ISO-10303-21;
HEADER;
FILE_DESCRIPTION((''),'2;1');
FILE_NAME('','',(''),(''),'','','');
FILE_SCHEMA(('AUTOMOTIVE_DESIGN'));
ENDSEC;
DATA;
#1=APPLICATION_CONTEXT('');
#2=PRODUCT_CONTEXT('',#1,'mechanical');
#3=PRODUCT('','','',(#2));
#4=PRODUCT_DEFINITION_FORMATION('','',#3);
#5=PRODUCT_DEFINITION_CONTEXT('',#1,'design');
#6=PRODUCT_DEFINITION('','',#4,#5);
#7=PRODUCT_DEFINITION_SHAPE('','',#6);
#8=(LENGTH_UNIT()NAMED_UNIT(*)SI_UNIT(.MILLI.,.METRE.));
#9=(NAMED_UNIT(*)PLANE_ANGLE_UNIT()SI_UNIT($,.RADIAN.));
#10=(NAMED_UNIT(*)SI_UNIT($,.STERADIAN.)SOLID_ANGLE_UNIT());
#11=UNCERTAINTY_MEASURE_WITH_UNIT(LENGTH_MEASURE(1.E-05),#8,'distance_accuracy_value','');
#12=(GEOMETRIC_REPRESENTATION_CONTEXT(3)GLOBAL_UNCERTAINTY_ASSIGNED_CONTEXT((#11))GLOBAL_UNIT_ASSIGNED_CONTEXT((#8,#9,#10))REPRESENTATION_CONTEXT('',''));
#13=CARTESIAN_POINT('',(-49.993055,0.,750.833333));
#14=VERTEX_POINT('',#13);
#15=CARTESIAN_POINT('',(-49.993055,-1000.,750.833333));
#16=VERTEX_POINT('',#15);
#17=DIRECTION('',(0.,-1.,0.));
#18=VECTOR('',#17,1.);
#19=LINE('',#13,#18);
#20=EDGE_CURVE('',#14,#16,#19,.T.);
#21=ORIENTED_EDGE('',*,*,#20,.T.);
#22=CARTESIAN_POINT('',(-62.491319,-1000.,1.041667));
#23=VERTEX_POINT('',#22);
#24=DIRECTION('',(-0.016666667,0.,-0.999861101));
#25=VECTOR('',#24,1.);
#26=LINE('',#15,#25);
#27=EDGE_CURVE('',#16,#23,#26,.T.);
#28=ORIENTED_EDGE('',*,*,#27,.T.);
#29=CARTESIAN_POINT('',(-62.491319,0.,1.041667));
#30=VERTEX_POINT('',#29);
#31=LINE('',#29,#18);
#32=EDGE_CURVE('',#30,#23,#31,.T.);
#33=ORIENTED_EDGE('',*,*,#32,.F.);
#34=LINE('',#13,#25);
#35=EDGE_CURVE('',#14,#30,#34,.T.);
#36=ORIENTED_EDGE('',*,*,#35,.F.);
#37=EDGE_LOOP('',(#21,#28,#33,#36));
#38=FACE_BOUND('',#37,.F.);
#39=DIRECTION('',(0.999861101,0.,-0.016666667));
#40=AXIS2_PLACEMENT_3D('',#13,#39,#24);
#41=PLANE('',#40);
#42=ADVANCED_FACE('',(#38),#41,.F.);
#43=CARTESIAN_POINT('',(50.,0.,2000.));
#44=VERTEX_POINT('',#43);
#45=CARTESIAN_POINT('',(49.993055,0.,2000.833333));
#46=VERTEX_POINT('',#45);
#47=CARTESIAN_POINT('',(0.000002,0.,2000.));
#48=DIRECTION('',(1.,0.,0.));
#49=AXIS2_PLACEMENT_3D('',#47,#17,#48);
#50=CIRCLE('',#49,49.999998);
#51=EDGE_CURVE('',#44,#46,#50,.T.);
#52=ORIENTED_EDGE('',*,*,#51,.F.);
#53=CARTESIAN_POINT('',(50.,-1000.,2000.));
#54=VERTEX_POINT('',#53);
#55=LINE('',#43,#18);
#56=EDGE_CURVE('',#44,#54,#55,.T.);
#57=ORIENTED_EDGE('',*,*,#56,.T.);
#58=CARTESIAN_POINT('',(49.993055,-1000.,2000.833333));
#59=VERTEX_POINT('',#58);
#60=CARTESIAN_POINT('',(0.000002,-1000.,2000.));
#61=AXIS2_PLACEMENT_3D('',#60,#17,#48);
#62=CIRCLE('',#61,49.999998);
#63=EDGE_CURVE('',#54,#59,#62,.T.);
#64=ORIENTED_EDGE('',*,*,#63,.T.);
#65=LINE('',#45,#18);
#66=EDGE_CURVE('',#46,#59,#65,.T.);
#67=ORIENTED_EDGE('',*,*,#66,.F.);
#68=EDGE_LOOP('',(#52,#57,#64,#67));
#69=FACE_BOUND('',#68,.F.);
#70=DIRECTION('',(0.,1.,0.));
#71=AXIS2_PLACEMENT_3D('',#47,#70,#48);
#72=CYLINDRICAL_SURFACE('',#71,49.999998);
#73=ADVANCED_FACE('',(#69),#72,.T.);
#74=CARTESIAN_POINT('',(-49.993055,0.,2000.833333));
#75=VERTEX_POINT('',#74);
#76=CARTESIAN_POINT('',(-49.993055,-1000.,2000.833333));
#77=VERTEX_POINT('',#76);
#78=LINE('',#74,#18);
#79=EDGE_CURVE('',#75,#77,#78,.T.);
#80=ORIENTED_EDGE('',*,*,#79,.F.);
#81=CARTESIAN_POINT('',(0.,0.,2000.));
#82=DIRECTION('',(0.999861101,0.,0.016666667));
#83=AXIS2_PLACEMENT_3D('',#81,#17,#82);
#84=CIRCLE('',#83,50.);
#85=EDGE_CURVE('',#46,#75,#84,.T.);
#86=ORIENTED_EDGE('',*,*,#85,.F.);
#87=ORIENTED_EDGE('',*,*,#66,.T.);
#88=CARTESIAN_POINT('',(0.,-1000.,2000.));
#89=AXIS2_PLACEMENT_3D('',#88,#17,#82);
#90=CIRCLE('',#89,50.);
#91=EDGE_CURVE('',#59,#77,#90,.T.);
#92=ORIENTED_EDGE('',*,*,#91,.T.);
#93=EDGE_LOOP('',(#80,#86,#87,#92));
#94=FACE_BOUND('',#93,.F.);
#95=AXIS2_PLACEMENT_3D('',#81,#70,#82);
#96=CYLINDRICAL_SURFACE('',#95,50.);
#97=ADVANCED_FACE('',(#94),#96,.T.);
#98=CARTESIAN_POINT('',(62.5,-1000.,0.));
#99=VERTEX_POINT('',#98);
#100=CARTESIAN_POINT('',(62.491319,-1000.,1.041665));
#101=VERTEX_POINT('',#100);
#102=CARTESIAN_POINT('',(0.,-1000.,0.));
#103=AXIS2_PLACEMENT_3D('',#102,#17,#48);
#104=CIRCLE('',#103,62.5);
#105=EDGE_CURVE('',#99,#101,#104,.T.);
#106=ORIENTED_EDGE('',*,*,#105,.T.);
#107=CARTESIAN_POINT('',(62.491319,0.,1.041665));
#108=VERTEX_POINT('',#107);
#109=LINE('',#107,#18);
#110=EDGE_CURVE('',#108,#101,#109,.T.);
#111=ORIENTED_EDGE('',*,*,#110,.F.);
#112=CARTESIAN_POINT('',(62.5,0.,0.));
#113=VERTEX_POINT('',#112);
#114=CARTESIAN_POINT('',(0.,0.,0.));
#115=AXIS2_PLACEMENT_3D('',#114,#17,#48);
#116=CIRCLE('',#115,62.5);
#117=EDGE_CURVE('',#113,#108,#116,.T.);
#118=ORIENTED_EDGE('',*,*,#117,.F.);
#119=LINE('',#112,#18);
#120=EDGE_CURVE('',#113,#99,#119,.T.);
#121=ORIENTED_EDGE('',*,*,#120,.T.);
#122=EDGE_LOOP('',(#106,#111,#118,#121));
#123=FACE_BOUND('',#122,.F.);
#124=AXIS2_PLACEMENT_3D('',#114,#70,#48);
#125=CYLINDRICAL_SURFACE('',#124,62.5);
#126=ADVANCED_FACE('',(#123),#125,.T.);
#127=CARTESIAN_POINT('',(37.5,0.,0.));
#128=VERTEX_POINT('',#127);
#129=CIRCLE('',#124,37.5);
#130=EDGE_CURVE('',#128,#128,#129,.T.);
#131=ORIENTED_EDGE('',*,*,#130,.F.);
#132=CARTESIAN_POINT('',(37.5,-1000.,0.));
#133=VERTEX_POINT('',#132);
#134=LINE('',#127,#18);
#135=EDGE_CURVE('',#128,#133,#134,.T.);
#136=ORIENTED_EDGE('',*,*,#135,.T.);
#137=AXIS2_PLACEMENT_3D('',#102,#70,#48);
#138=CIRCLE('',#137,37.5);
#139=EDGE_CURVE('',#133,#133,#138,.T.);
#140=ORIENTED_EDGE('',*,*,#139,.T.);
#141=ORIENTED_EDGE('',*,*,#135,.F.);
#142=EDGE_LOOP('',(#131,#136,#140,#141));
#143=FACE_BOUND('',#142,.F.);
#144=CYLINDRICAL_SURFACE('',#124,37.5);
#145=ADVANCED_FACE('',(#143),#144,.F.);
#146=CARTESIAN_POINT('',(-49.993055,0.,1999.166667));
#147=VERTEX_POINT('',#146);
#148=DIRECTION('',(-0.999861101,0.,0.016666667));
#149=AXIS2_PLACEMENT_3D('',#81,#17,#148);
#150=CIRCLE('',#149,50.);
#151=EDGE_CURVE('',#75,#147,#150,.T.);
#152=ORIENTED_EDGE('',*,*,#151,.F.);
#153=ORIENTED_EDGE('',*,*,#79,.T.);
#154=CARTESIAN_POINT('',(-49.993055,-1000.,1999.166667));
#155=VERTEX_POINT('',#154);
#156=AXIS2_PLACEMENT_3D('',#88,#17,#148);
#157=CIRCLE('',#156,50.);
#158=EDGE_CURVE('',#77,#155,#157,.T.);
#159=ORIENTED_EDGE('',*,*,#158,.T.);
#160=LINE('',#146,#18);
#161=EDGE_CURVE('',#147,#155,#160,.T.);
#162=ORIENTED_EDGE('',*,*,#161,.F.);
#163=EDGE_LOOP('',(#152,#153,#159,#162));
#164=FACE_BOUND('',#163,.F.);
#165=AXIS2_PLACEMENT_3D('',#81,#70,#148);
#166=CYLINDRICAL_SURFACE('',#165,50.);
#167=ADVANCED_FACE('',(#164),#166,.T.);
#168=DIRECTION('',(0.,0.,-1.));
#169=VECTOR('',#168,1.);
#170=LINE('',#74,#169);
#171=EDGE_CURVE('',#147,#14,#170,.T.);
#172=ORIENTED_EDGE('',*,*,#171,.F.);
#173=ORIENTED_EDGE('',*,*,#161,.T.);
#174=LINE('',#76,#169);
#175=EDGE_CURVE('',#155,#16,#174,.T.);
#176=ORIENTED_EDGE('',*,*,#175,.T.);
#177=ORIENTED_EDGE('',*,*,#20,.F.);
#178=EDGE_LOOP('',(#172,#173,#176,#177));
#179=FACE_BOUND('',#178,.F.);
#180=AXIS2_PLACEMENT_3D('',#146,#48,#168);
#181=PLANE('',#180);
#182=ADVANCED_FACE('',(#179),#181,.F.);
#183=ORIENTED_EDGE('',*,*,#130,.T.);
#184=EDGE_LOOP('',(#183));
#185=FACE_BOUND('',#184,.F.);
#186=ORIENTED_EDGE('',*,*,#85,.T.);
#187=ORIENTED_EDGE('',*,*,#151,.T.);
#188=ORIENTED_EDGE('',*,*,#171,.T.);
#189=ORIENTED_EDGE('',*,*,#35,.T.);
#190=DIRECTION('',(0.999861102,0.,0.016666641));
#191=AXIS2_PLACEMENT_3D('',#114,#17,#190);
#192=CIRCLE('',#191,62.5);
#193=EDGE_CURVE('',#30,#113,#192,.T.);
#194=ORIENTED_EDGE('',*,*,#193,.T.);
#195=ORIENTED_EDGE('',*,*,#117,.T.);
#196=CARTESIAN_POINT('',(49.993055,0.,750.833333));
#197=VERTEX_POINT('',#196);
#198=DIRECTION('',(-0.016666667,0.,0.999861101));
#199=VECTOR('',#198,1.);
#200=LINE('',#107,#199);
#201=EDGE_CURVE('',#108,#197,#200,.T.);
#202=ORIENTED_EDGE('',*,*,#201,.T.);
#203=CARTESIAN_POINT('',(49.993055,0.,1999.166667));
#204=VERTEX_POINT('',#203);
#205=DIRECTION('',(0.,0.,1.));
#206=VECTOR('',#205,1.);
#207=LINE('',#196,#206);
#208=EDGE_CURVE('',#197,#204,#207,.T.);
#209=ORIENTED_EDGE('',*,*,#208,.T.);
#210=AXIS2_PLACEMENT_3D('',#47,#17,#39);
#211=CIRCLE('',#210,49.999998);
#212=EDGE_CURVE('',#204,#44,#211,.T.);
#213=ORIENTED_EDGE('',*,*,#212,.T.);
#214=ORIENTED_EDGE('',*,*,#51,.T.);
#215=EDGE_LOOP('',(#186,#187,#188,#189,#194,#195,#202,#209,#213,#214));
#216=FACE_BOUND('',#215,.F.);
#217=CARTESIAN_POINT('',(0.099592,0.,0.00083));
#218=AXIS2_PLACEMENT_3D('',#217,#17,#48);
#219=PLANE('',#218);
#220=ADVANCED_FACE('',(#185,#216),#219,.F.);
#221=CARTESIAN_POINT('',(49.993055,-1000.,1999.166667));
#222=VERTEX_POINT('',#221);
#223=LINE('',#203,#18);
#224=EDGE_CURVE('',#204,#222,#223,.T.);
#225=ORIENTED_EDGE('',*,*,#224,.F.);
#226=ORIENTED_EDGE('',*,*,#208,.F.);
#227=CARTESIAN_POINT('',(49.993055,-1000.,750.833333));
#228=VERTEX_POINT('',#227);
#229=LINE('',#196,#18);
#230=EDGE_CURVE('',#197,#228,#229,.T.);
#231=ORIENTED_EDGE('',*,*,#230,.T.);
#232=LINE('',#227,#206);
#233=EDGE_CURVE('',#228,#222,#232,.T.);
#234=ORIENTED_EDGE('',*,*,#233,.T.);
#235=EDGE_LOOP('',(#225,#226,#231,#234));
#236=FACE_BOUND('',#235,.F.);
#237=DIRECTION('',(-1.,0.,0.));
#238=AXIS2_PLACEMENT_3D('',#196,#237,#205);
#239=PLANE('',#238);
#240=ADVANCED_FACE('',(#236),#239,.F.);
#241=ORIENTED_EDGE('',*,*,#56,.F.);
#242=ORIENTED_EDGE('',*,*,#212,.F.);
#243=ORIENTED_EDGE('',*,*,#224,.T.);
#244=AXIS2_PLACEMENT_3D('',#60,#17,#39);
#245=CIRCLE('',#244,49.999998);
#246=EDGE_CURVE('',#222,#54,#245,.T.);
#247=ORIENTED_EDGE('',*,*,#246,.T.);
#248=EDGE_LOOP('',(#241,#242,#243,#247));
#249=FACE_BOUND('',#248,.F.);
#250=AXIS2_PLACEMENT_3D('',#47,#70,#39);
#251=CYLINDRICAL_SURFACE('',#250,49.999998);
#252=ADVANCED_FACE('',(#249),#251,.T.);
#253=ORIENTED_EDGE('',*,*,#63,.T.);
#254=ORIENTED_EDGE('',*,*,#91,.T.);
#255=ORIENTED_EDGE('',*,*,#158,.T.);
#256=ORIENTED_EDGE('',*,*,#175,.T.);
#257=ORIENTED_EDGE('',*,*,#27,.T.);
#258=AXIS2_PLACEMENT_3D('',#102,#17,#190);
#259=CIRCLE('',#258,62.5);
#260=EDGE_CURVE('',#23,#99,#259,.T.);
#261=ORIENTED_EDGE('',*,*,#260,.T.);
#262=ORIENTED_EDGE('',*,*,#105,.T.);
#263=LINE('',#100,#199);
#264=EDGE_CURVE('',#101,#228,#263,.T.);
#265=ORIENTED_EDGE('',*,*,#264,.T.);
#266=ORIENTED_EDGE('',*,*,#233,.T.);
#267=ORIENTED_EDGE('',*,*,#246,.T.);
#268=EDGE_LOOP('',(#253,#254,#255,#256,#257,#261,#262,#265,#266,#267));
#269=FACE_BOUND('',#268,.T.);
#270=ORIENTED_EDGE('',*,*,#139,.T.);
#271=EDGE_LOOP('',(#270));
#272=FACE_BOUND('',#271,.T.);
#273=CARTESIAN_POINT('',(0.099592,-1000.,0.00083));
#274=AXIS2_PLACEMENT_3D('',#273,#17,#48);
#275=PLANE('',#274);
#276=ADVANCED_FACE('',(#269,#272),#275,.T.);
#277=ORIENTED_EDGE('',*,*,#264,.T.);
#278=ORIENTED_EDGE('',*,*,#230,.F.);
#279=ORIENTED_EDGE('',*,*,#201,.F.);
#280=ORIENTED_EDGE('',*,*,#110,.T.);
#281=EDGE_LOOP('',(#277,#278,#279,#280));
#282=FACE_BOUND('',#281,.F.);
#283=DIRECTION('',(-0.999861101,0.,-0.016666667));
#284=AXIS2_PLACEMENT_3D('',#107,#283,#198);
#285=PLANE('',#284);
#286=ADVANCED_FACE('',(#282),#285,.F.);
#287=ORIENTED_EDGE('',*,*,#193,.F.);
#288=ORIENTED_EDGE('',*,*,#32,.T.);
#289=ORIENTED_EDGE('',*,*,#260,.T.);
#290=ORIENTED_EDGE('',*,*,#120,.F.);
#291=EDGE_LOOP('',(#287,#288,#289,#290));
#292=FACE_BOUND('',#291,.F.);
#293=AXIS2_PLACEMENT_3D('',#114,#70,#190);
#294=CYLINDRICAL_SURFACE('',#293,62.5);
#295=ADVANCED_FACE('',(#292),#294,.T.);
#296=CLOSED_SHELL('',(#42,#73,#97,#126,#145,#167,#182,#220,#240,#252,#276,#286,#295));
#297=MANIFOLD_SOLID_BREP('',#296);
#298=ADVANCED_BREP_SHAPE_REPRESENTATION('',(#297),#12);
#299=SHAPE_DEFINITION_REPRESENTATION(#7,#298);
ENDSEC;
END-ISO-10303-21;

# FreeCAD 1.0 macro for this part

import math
import FreeCAD as App
import Part
import Sketcher

doc = App.newDocument("Part")
body = doc.addObject("PartDesign::Body", "Body")

# Sketch on XZ plane
sketch1 = doc.addObject("Sketcher::SketchObject", "Sketch")
body.addObject(sketch1)
sketch1.AttachmentSupport = (doc.XZ_Plane, [""])
sketch1.MapMode = "FlatFace"
sketch1.addGeometry(Part.ArcOfCircle(Part.Circle(App.Vector(0, 0, 0), App.Vector(0, 0, 1), 62.5), math.radians(179), math.radians(360)), False)
sketch1.addGeometry(Part.ArcOfCircle(Part.Circle(App.Vector(0, 0, 0), App.Vector(0, 0, 1), 62.5), math.radians(0), math.radians(0.95)), False)
sketch1.addGeometry(Part.LineSegment(App.Vector(62.5, 1, 0), App.Vector(50, 750.8, 0)), False)
sketch1.addGeometry(Part.LineSegment(App.Vector(50, 750.8, 0), App.Vector(50, 1999.2, 0)), False)
sketch1.addGeometry(Part.ArcOfCircle(Part.Circle(App.Vector(0, 2000, 0), App.Vector(0, 0, 1), 50), math.radians(-0.95), math.radians(0)), False)
sketch1.addGeometry(Part.ArcOfCircle(Part.Circle(App.Vector(0, 2000, 0), App.Vector(0, 0, 1), 50), math.radians(0), math.radians(0.95)), False)
sketch1.addGeometry(Part.ArcOfCircle(Part.Circle(App.Vector(0, 2000, 0), App.Vector(0, 0, 1), 50), math.radians(1), math.radians(179)), False)
sketch1.addGeometry(Part.ArcOfCircle(Part.Circle(App.Vector(0, 2000, 0), App.Vector(0, 0, 1), 50), math.radians(179.05), math.radians(180.95)), False)
sketch1.addGeometry(Part.LineSegment(App.Vector(-50, 1999.2, 0), App.Vector(-50, 750.8, 0)), False)
sketch1.addGeometry(Part.LineSegment(App.Vector(-50, 750.8, 0), App.Vector(-62.5, 1, 0)), False)
sketch1.addGeometry(Part.Circle(App.Vector(0, 0, 0), App.Vector(0, 0, 1), 37.5), False)
sketch1.addConstraint(Sketcher.Constraint("Tangent", 0, 2, 1, 1))
sketch1.addConstraint(Sketcher.Constraint("Tangent", 1, 2, 2, 1))
sketch1.addConstraint(Sketcher.Constraint("Coincident", 2, 2, 3, 1))
sketch1.addConstraint(Sketcher.Constraint("Coincident", 3, 2, 4, 1))
sketch1.addConstraint(Sketcher.Constraint("Tangent", 4, 2, 5, 1))
sketch1.addConstraint(Sketcher.Constraint("Tangent", 5, 2, 6, 1))
sketch1.addConstraint(Sketcher.Constraint("Tangent", 6, 2, 7, 1))
sketch1.addConstraint(Sketcher.Constraint("Coincident", 7, 2, 8, 1))
sketch1.addConstraint(Sketcher.Constraint("Coincident", 8, 2, 9, 1))
sketch1.addConstraint(Sketcher.Constraint("Tangent", 9, 2, 0, 1))
sketch1.addConstraint(Sketcher.Constraint("Vertical", 3))
sketch1.addConstraint(Sketcher.Constraint("Vertical", 8))
sketch1.addConstraint(Sketcher.Constraint("Coincident", 0, 3, -1, 1))
sketch1.addConstraint(Sketcher.Constraint("Coincident", 10, 3, -1, 1))
sketch1.addConstraint(Sketcher.Constraint("Coincident", 6, 3, 4, 3))
sketch1.addConstraint(Sketcher.Constraint("Equal", 0, 1))
sketch1.addConstraint(Sketcher.Constraint("Equal", 6, 7))
sketch1.addConstraint(Sketcher.Constraint("Symmetric", 5, 2, 6, 2, -2))
sketch1.addConstraint(Sketcher.Constraint("Symmetric", 2, 2, 8, 2, -2))
sketch1.addConstraint(Sketcher.Constraint("PointOnObject", 0, 2, -1))
sketch1.addConstraint(Sketcher.Constraint("Horizontal", 7, 3, 4, 2))
sketch1.addConstraint(Sketcher.Constraint("Vertical", 3, 2, 5, 2))
sketch1.addConstraint(Sketcher.Constraint("Diameter", 10, 75.0))
sketch1.addConstraint(Sketcher.Constraint("Radius", 4, 49.999998))
sketch1.addConstraint(Sketcher.Constraint("Radius", 0, 62.5))
sketch1.addConstraint(Sketcher.Constraint("DistanceY", -1, 1, 4, 3, 2000.0))
sketch1.addConstraint(Sketcher.Constraint("DistanceY", 3, 1, 3, 2, 1248.333333))
sketch1.addConstraint(Sketcher.Constraint("DistanceY", 1, 2, 2, 2, 749.791668))
pad1 = doc.addObject("PartDesign::Pad", "Pad")
body.addObject(pad1)
pad1.Profile = sketch1
pad1.Length = 1000

doc.recompute()
